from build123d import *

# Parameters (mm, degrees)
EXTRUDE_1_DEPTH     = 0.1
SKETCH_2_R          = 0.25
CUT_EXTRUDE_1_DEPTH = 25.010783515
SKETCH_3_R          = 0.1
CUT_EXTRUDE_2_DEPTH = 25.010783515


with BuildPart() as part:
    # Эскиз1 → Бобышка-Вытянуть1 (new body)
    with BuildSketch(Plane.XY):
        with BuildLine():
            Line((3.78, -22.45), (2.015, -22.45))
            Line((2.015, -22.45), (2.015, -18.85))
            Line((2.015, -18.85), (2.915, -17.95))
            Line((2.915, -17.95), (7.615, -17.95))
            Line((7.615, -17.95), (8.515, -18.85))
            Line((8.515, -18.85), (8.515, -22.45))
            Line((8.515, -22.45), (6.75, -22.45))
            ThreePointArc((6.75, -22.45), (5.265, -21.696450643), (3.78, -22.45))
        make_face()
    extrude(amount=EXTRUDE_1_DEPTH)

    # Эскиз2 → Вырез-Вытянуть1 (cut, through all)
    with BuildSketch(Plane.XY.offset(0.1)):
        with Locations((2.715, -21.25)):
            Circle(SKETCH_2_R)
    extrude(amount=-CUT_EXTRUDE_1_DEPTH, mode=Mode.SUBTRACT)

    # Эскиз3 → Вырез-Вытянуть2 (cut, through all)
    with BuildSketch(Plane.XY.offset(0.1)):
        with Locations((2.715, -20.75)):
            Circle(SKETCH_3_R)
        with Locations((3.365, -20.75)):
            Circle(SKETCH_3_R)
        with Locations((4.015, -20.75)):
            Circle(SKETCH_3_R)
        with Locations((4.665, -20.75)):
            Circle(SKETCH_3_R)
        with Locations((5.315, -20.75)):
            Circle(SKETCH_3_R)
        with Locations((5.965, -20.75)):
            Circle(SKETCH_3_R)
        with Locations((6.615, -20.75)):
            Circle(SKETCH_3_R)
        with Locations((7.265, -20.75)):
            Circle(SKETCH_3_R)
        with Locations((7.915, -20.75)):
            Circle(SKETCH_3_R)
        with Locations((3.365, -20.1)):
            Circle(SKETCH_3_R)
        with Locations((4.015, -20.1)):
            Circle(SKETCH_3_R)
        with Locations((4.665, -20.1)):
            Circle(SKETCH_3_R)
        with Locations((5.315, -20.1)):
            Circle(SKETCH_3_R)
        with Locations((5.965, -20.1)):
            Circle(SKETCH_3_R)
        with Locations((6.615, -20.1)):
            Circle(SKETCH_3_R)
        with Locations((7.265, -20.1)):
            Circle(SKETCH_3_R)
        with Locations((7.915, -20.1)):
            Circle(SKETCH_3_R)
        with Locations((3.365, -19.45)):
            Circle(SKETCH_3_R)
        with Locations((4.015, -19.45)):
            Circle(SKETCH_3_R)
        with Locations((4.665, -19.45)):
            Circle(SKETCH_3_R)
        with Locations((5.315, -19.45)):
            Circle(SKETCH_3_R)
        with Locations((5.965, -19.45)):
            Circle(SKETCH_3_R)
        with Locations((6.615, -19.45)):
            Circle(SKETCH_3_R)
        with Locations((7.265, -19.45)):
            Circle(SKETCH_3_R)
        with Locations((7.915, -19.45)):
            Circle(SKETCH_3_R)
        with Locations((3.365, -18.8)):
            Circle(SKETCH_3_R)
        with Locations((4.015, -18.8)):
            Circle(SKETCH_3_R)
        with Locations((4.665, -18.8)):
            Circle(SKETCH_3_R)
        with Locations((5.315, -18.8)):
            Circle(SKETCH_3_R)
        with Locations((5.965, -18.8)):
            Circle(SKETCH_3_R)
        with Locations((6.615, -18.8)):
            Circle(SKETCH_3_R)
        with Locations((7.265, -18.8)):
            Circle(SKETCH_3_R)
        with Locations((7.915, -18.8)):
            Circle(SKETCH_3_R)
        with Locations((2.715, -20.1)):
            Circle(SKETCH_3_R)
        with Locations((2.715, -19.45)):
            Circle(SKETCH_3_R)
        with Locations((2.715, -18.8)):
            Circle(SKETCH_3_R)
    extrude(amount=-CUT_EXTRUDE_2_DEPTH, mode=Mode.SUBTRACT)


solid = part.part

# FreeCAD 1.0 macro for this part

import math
import FreeCAD as App
import Part
import Sketcher
Q = App.Units.Quantity

doc = App.newDocument("Part")
body = doc.addObject("PartDesign::Body", "Body")

# Sketch on XY plane
sketch1 = doc.addObject("Sketcher::SketchObject", "Sketch")
body.addObject(sketch1)
sketch1.AttachmentSupport = (doc.XY_Plane, [""])
sketch1.MapMode = "FlatFace"
sketch1.addGeometry([
    Part.LineSegment(App.Vector(2, -22.4, 0), App.Vector(3.8, -22.4, 0)),  # 0
    Part.ArcOfCircle(Part.Circle(App.Vector(5.3, -23.5, 0), App.Vector(0, 0, 1), 1.8), math.radians(36), math.radians(144)),  # 1
    Part.LineSegment(App.Vector(6.8, -22.4, 0), App.Vector(8.5, -22.4, 0)),  # 2
    Part.LineSegment(App.Vector(8.5, -22.4, 0), App.Vector(8.5, -18.9, 0)),  # 3
    Part.LineSegment(App.Vector(8.5, -18.9, 0), App.Vector(7.6, -17.9, 0)),  # 4
    Part.LineSegment(App.Vector(7.6, -17.9, 0), App.Vector(2.9, -17.9, 0)),  # 5
    Part.LineSegment(App.Vector(2.9, -17.9, 0), App.Vector(2, -18.9, 0)),  # 6
    Part.LineSegment(App.Vector(2, -18.9, 0), App.Vector(2, -22.4, 0)),  # 7
], False)
sketch1.addConstraint([
    Sketcher.Constraint("Coincident", 0, 2, 1, 2),
    Sketcher.Constraint("Coincident", 1, 1, 2, 1),
    Sketcher.Constraint("Coincident", 2, 2, 3, 1),
    Sketcher.Constraint("Coincident", 3, 2, 4, 1),
    Sketcher.Constraint("Coincident", 4, 2, 5, 1),
    Sketcher.Constraint("Coincident", 5, 2, 6, 1),
    Sketcher.Constraint("Coincident", 6, 2, 7, 1),
    Sketcher.Constraint("Coincident", 7, 2, 0, 1),
    Sketcher.Constraint("Horizontal", 0),
    Sketcher.Constraint("Horizontal", 2),
    Sketcher.Constraint("Vertical", 3),
    Sketcher.Constraint("Horizontal", 5),
    Sketcher.Constraint("Vertical", 7),
    Sketcher.Constraint("Perpendicular", 4, 6),
    Sketcher.Constraint("Horizontal", 0, 2, 1, 1),
    Sketcher.Constraint("Horizontal", 3, 2, 6, 2),
    Sketcher.Constraint("Equal", 0, 2),
    Sketcher.Constraint("Equal", 4, 6),
    Sketcher.Constraint("Radius", 1, Q("1.84 mm")),
    Sketcher.Constraint("DistanceX", 5, 2, 5, 1, Q("4.7 mm")),
    Sketcher.Constraint("DistanceY", 3, 1, 3, 2, Q("3.6 mm")),
    Sketcher.Constraint("DistanceX", 4, 2, 3, 2, Q("0.9 mm")),
    Sketcher.Constraint("DistanceX", 0, 1, 0, 2, Q("1.765 mm")),
    Sketcher.Constraint("DistanceX", -1, 1, 0, 2, Q("3.78 mm")),
    Sketcher.Constraint("DistanceY", 0, 2, -1, 1, Q("22.45 mm")),
])
pad1 = doc.addObject("PartDesign::Pad", "Pad")
body.addObject(pad1)
pad1.Profile = sketch1
pad1.Length = 0.1

# Sketch on XY plane
sketch2 = doc.addObject("Sketcher::SketchObject", "Sketch001")
body.addObject(sketch2)
sketch2.AttachmentSupport = (doc.XY_Plane, [""])
sketch2.MapMode = "FlatFace"
sketch2.AttachmentOffset = App.Placement(App.Vector(0, 0, 0.1), App.Rotation())
sketch2.addGeometry(Part.Circle(App.Vector(2.71, -21.25, 0), App.Vector(0, 0, 1), 0.25), False)
sketch2.addConstraint([
    Sketcher.Constraint("Diameter", 0, Q("0.5 mm")),
    Sketcher.Constraint("DistanceY", 0, 3, -1, 1, Q("21.25 mm")),
    Sketcher.Constraint("DistanceX", -1, 1, 0, 3, Q("2.715 mm")),
])
pocket1 = doc.addObject("PartDesign::Pocket", "Pocket")
body.addObject(pocket1)
pocket1.Profile = sketch2
pocket1.Type = "ThroughAll"

# Sketch on XY plane
sketch3 = doc.addObject("Sketcher::SketchObject", "Sketch002")
body.addObject(sketch3)
sketch3.AttachmentSupport = (doc.XY_Plane, [""])
sketch3.MapMode = "FlatFace"
sketch3.AttachmentOffset = App.Placement(App.Vector(0, 0, 0.1), App.Rotation())
sketch3.addGeometry([
    Part.Circle(App.Vector(2.71, -20.75, 0), App.Vector(0, 0, 1), 0.1),  # 0
    Part.Circle(App.Vector(3.37, -20.75, 0), App.Vector(0, 0, 1), 0.1),  # 1
    Part.Circle(App.Vector(4.01, -20.75, 0), App.Vector(0, 0, 1), 0.1),  # 2
    Part.Circle(App.Vector(4.67, -20.75, 0), App.Vector(0, 0, 1), 0.1),  # 3
    Part.Circle(App.Vector(5.32, -20.75, 0), App.Vector(0, 0, 1), 0.1),  # 4
    Part.Circle(App.Vector(5.96, -20.75, 0), App.Vector(0, 0, 1), 0.1),  # 5
    Part.Circle(App.Vector(6.62, -20.75, 0), App.Vector(0, 0, 1), 0.1),  # 6
    Part.Circle(App.Vector(7.26, -20.75, 0), App.Vector(0, 0, 1), 0.1),  # 7
    Part.Circle(App.Vector(7.92, -20.75, 0), App.Vector(0, 0, 1), 0.1),  # 8
    Part.Circle(App.Vector(3.37, -20.1, 0), App.Vector(0, 0, 1), 0.1),  # 9
    Part.Circle(App.Vector(4.01, -20.1, 0), App.Vector(0, 0, 1), 0.1),  # 10
    Part.Circle(App.Vector(4.67, -20.1, 0), App.Vector(0, 0, 1), 0.1),  # 11
    Part.Circle(App.Vector(5.32, -20.1, 0), App.Vector(0, 0, 1), 0.1),  # 12
    Part.Circle(App.Vector(5.96, -20.1, 0), App.Vector(0, 0, 1), 0.1),  # 13
    Part.Circle(App.Vector(6.62, -20.1, 0), App.Vector(0, 0, 1), 0.1),  # 14
    Part.Circle(App.Vector(7.26, -20.1, 0), App.Vector(0, 0, 1), 0.1),  # 15
    Part.Circle(App.Vector(7.92, -20.1, 0), App.Vector(0, 0, 1), 0.1),  # 16
    Part.Circle(App.Vector(3.37, -19.45, 0), App.Vector(0, 0, 1), 0.1),  # 17
    Part.Circle(App.Vector(4.01, -19.45, 0), App.Vector(0, 0, 1), 0.1),  # 18
    Part.Circle(App.Vector(4.67, -19.45, 0), App.Vector(0, 0, 1), 0.1),  # 19
    Part.Circle(App.Vector(5.32, -19.45, 0), App.Vector(0, 0, 1), 0.1),  # 20
    Part.Circle(App.Vector(5.96, -19.45, 0), App.Vector(0, 0, 1), 0.1),  # 21
    Part.Circle(App.Vector(6.62, -19.45, 0), App.Vector(0, 0, 1), 0.1),  # 22
    Part.Circle(App.Vector(7.26, -19.45, 0), App.Vector(0, 0, 1), 0.1),  # 23
    Part.Circle(App.Vector(7.92, -19.45, 0), App.Vector(0, 0, 1), 0.1),  # 24
    Part.Circle(App.Vector(3.37, -18.8, 0), App.Vector(0, 0, 1), 0.1),  # 25
    Part.Circle(App.Vector(4.01, -18.8, 0), App.Vector(0, 0, 1), 0.1),  # 26
    Part.Circle(App.Vector(4.67, -18.8, 0), App.Vector(0, 0, 1), 0.1),  # 27
    Part.Circle(App.Vector(5.32, -18.8, 0), App.Vector(0, 0, 1), 0.1),  # 28
    Part.Circle(App.Vector(5.96, -18.8, 0), App.Vector(0, 0, 1), 0.1),  # 29
    Part.Circle(App.Vector(6.62, -18.8, 0), App.Vector(0, 0, 1), 0.1),  # 30
    Part.Circle(App.Vector(7.26, -18.8, 0), App.Vector(0, 0, 1), 0.1),  # 31
    Part.Circle(App.Vector(7.92, -18.8, 0), App.Vector(0, 0, 1), 0.1),  # 32
    Part.Circle(App.Vector(2.71, -20.1, 0), App.Vector(0, 0, 1), 0.1),  # 33
    Part.Circle(App.Vector(2.71, -19.45, 0), App.Vector(0, 0, 1), 0.1),  # 34
    Part.Circle(App.Vector(2.71, -18.8, 0), App.Vector(0, 0, 1), 0.1),  # 35
], False)
sketch3.addConstraint([
    Sketcher.Constraint("Equal", 0, 1),
    Sketcher.Constraint("Equal", 1, 2),
    Sketcher.Constraint("Equal", 2, 3),
    Sketcher.Constraint("Equal", 3, 4),
    Sketcher.Constraint("Equal", 4, 5),
    Sketcher.Constraint("Equal", 5, 6),
    Sketcher.Constraint("Equal", 6, 7),
    Sketcher.Constraint("Equal", 7, 8),
    Sketcher.Constraint("Equal", 8, 9),
    Sketcher.Constraint("Equal", 9, 10),
    Sketcher.Constraint("Equal", 10, 11),
    Sketcher.Constraint("Equal", 11, 12),
    Sketcher.Constraint("Equal", 12, 13),
    Sketcher.Constraint("Equal", 13, 14),
    Sketcher.Constraint("Equal", 14, 15),
    Sketcher.Constraint("Equal", 15, 16),
    Sketcher.Constraint("Equal", 16, 17),
    Sketcher.Constraint("Equal", 17, 18),
    Sketcher.Constraint("Equal", 18, 19),
    Sketcher.Constraint("Equal", 19, 20),
    Sketcher.Constraint("Equal", 20, 21),
    Sketcher.Constraint("Equal", 21, 22),
    Sketcher.Constraint("Equal", 22, 23),
    Sketcher.Constraint("Equal", 23, 24),
    Sketcher.Constraint("Equal", 24, 25),
    Sketcher.Constraint("Equal", 25, 26),
    Sketcher.Constraint("Equal", 26, 27),
    Sketcher.Constraint("Equal", 27, 28),
    Sketcher.Constraint("Equal", 28, 29),
    Sketcher.Constraint("Equal", 29, 30),
    Sketcher.Constraint("Equal", 30, 31),
    Sketcher.Constraint("Equal", 31, 32),
    Sketcher.Constraint("Equal", 32, 33),
    Sketcher.Constraint("Equal", 33, 34),
    Sketcher.Constraint("Equal", 34, 35),
    Sketcher.Constraint("Horizontal", 0, 3, 1, 3),
    Sketcher.Constraint("Horizontal", 1, 3, 2, 3),
    Sketcher.Constraint("Horizontal", 2, 3, 3, 3),
    Sketcher.Constraint("Horizontal", 3, 3, 4, 3),
    Sketcher.Constraint("Horizontal", 4, 3, 5, 3),
    Sketcher.Constraint("Horizontal", 5, 3, 6, 3),
    Sketcher.Constraint("Horizontal", 6, 3, 7, 3),
    Sketcher.Constraint("Horizontal", 7, 3, 8, 3),
    Sketcher.Constraint("Horizontal", 9, 3, 10, 3),
    Sketcher.Constraint("Horizontal", 10, 3, 11, 3),
    Sketcher.Constraint("Horizontal", 11, 3, 12, 3),
    Sketcher.Constraint("Horizontal", 12, 3, 13, 3),
    Sketcher.Constraint("Horizontal", 13, 3, 14, 3),
    Sketcher.Constraint("Horizontal", 14, 3, 15, 3),
    Sketcher.Constraint("Horizontal", 15, 3, 16, 3),
    Sketcher.Constraint("Horizontal", 17, 3, 18, 3),
    Sketcher.Constraint("Horizontal", 18, 3, 19, 3),
    Sketcher.Constraint("Horizontal", 19, 3, 20, 3),
    Sketcher.Constraint("Horizontal", 20, 3, 21, 3),
    Sketcher.Constraint("Horizontal", 21, 3, 22, 3),
    Sketcher.Constraint("Horizontal", 22, 3, 23, 3),
    Sketcher.Constraint("Horizontal", 23, 3, 24, 3),
    Sketcher.Constraint("Horizontal", 25, 3, 26, 3),
    Sketcher.Constraint("Horizontal", 26, 3, 27, 3),
    Sketcher.Constraint("Horizontal", 27, 3, 28, 3),
    Sketcher.Constraint("Horizontal", 28, 3, 29, 3),
    Sketcher.Constraint("Horizontal", 29, 3, 30, 3),
    Sketcher.Constraint("Horizontal", 30, 3, 31, 3),
    Sketcher.Constraint("Horizontal", 31, 3, 32, 3),
    Sketcher.Constraint("Horizontal", 16, 3, 33, 3),
    Sketcher.Constraint("Horizontal", 24, 3, 34, 3),
    Sketcher.Constraint("Horizontal", 32, 3, 35, 3),
    Sketcher.Constraint("Vertical", 1, 3, 9, 3),
    Sketcher.Constraint("Vertical", 2, 3, 10, 3),
    Sketcher.Constraint("Vertical", 3, 3, 11, 3),
    Sketcher.Constraint("Vertical", 4, 3, 12, 3),
    Sketcher.Constraint("Vertical", 5, 3, 13, 3),
    Sketcher.Constraint("Vertical", 6, 3, 14, 3),
    Sketcher.Constraint("Vertical", 7, 3, 15, 3),
    Sketcher.Constraint("Vertical", 8, 3, 16, 3),
    Sketcher.Constraint("Vertical", 9, 3, 17, 3),
    Sketcher.Constraint("Vertical", 10, 3, 18, 3),
    Sketcher.Constraint("Vertical", 11, 3, 19, 3),
    Sketcher.Constraint("Vertical", 12, 3, 20, 3),
    Sketcher.Constraint("Vertical", 13, 3, 21, 3),
    Sketcher.Constraint("Vertical", 14, 3, 22, 3),
    Sketcher.Constraint("Vertical", 15, 3, 23, 3),
    Sketcher.Constraint("Vertical", 16, 3, 24, 3),
    Sketcher.Constraint("Vertical", 17, 3, 25, 3),
    Sketcher.Constraint("Vertical", 18, 3, 26, 3),
    Sketcher.Constraint("Vertical", 19, 3, 27, 3),
    Sketcher.Constraint("Vertical", 20, 3, 28, 3),
    Sketcher.Constraint("Vertical", 21, 3, 29, 3),
    Sketcher.Constraint("Vertical", 22, 3, 30, 3),
    Sketcher.Constraint("Vertical", 23, 3, 31, 3),
    Sketcher.Constraint("Vertical", 24, 3, 32, 3),
    Sketcher.Constraint("Vertical", 0, 3, 33, 3),
    Sketcher.Constraint("Vertical", 33, 3, 34, 3),
    Sketcher.Constraint("Vertical", 34, 3, 35, 3),
    Sketcher.Constraint("Diameter", 0, Q("0.2 mm")),
    Sketcher.Constraint("DistanceY", 9, 3, -1, 1, Q("20.1 mm")),
    Sketcher.Constraint("DistanceY", 25, 3, -1, 1, Q("18.8 mm")),
    Sketcher.Constraint("DistanceX", 0, 3, 2, 3, Q("1.3 mm")),
    Sketcher.Constraint("DistanceX", 1, 3, 3, 3, Q("1.3 mm")),
    Sketcher.Constraint("DistanceX", 2, 3, 4, 3, Q("1.3 mm")),
    Sketcher.Constraint("DistanceX", 3, 3, 5, 3, Q("1.3 mm")),
    Sketcher.Constraint("DistanceX", 4, 3, 6, 3, Q("1.3 mm")),
    Sketcher.Constraint("DistanceX", 5, 3, 7, 3, Q("1.3 mm")),
    Sketcher.Constraint("DistanceX", 6, 3, 8, 3, Q("1.3 mm")),
    Sketcher.Constraint("DistanceY", 1, 3, 17, 3, Q("1.3 mm")),
    Sketcher.Constraint("DistanceY", 0, 3, -1, 1, Q("20.75 mm")),
    Sketcher.Constraint("DistanceX", 0, 3, 1, 3, Q("0.65 mm")),
    Sketcher.Constraint("DistanceX", -1, 1, 0, 3, Q("2.715 mm")),
])
pocket2 = doc.addObject("PartDesign::Pocket", "Pocket001")
body.addObject(pocket2)
pocket2.Profile = sketch3
pocket2.Type = "ThroughAll"

doc.recompute()
